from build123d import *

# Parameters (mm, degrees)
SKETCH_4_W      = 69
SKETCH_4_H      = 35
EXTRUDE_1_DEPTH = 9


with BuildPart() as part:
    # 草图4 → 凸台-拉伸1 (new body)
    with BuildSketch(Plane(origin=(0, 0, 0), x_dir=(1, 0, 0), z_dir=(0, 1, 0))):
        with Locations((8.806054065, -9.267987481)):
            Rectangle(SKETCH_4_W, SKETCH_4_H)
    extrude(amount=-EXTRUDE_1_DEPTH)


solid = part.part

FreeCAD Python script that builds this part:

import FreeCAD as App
import Part
import Sketcher

V = App.Vector


def add_polygon(sketch, points):
    """Adds a closed chain of lines whose ends are joined by coincident constraints."""
    first, n = sketch.GeometryCount, len(points)
    for a, b in zip(points, points[1:] + points[:1]):
        sketch.addGeometry(Part.LineSegment(App.Vector(*a, 0), App.Vector(*b, 0)), False)
    for i in range(n):
        sketch.addConstraint(Sketcher.Constraint("Coincident", first + i, 2, first + (i + 1) % n, 1))

doc = App.newDocument("Part")
body = doc.addObject("PartDesign::Body", "Body")

sketch1 = doc.addObject("Sketcher::SketchObject", "Sketch")
body.addObject(sketch1)
sketch1.AttachmentSupport = (doc.XZ_Plane, [""])
sketch1.MapMode = "FlatFace"
add_polygon(sketch1, [(-26, -8), (-26, 27), (43, 27), (43, -8)])
sketch1.addConstraint([
    Sketcher.Constraint("Vertical", 0),
    Sketcher.Constraint("Horizontal", 1),
    Sketcher.Constraint("Vertical", 2),
    Sketcher.Constraint("Horizontal", 3),
    Sketcher.Constraint("DistanceX", 1, 1, 1, 2, 69.0),
    Sketcher.Constraint("DistanceY", 0, 1, 0, 2, 35.0),
    Sketcher.Constraint("DistanceX", 0, 2, -1, 1, 25.693946),
    Sketcher.Constraint("DistanceY", -1, 1, 0, 2, 26.767987),
])
pad1 = doc.addObject("PartDesign::Pad", "Pad")
body.addObject(pad1)
pad1.Profile = sketch1
pad1.Length = 9

doc.recompute()
